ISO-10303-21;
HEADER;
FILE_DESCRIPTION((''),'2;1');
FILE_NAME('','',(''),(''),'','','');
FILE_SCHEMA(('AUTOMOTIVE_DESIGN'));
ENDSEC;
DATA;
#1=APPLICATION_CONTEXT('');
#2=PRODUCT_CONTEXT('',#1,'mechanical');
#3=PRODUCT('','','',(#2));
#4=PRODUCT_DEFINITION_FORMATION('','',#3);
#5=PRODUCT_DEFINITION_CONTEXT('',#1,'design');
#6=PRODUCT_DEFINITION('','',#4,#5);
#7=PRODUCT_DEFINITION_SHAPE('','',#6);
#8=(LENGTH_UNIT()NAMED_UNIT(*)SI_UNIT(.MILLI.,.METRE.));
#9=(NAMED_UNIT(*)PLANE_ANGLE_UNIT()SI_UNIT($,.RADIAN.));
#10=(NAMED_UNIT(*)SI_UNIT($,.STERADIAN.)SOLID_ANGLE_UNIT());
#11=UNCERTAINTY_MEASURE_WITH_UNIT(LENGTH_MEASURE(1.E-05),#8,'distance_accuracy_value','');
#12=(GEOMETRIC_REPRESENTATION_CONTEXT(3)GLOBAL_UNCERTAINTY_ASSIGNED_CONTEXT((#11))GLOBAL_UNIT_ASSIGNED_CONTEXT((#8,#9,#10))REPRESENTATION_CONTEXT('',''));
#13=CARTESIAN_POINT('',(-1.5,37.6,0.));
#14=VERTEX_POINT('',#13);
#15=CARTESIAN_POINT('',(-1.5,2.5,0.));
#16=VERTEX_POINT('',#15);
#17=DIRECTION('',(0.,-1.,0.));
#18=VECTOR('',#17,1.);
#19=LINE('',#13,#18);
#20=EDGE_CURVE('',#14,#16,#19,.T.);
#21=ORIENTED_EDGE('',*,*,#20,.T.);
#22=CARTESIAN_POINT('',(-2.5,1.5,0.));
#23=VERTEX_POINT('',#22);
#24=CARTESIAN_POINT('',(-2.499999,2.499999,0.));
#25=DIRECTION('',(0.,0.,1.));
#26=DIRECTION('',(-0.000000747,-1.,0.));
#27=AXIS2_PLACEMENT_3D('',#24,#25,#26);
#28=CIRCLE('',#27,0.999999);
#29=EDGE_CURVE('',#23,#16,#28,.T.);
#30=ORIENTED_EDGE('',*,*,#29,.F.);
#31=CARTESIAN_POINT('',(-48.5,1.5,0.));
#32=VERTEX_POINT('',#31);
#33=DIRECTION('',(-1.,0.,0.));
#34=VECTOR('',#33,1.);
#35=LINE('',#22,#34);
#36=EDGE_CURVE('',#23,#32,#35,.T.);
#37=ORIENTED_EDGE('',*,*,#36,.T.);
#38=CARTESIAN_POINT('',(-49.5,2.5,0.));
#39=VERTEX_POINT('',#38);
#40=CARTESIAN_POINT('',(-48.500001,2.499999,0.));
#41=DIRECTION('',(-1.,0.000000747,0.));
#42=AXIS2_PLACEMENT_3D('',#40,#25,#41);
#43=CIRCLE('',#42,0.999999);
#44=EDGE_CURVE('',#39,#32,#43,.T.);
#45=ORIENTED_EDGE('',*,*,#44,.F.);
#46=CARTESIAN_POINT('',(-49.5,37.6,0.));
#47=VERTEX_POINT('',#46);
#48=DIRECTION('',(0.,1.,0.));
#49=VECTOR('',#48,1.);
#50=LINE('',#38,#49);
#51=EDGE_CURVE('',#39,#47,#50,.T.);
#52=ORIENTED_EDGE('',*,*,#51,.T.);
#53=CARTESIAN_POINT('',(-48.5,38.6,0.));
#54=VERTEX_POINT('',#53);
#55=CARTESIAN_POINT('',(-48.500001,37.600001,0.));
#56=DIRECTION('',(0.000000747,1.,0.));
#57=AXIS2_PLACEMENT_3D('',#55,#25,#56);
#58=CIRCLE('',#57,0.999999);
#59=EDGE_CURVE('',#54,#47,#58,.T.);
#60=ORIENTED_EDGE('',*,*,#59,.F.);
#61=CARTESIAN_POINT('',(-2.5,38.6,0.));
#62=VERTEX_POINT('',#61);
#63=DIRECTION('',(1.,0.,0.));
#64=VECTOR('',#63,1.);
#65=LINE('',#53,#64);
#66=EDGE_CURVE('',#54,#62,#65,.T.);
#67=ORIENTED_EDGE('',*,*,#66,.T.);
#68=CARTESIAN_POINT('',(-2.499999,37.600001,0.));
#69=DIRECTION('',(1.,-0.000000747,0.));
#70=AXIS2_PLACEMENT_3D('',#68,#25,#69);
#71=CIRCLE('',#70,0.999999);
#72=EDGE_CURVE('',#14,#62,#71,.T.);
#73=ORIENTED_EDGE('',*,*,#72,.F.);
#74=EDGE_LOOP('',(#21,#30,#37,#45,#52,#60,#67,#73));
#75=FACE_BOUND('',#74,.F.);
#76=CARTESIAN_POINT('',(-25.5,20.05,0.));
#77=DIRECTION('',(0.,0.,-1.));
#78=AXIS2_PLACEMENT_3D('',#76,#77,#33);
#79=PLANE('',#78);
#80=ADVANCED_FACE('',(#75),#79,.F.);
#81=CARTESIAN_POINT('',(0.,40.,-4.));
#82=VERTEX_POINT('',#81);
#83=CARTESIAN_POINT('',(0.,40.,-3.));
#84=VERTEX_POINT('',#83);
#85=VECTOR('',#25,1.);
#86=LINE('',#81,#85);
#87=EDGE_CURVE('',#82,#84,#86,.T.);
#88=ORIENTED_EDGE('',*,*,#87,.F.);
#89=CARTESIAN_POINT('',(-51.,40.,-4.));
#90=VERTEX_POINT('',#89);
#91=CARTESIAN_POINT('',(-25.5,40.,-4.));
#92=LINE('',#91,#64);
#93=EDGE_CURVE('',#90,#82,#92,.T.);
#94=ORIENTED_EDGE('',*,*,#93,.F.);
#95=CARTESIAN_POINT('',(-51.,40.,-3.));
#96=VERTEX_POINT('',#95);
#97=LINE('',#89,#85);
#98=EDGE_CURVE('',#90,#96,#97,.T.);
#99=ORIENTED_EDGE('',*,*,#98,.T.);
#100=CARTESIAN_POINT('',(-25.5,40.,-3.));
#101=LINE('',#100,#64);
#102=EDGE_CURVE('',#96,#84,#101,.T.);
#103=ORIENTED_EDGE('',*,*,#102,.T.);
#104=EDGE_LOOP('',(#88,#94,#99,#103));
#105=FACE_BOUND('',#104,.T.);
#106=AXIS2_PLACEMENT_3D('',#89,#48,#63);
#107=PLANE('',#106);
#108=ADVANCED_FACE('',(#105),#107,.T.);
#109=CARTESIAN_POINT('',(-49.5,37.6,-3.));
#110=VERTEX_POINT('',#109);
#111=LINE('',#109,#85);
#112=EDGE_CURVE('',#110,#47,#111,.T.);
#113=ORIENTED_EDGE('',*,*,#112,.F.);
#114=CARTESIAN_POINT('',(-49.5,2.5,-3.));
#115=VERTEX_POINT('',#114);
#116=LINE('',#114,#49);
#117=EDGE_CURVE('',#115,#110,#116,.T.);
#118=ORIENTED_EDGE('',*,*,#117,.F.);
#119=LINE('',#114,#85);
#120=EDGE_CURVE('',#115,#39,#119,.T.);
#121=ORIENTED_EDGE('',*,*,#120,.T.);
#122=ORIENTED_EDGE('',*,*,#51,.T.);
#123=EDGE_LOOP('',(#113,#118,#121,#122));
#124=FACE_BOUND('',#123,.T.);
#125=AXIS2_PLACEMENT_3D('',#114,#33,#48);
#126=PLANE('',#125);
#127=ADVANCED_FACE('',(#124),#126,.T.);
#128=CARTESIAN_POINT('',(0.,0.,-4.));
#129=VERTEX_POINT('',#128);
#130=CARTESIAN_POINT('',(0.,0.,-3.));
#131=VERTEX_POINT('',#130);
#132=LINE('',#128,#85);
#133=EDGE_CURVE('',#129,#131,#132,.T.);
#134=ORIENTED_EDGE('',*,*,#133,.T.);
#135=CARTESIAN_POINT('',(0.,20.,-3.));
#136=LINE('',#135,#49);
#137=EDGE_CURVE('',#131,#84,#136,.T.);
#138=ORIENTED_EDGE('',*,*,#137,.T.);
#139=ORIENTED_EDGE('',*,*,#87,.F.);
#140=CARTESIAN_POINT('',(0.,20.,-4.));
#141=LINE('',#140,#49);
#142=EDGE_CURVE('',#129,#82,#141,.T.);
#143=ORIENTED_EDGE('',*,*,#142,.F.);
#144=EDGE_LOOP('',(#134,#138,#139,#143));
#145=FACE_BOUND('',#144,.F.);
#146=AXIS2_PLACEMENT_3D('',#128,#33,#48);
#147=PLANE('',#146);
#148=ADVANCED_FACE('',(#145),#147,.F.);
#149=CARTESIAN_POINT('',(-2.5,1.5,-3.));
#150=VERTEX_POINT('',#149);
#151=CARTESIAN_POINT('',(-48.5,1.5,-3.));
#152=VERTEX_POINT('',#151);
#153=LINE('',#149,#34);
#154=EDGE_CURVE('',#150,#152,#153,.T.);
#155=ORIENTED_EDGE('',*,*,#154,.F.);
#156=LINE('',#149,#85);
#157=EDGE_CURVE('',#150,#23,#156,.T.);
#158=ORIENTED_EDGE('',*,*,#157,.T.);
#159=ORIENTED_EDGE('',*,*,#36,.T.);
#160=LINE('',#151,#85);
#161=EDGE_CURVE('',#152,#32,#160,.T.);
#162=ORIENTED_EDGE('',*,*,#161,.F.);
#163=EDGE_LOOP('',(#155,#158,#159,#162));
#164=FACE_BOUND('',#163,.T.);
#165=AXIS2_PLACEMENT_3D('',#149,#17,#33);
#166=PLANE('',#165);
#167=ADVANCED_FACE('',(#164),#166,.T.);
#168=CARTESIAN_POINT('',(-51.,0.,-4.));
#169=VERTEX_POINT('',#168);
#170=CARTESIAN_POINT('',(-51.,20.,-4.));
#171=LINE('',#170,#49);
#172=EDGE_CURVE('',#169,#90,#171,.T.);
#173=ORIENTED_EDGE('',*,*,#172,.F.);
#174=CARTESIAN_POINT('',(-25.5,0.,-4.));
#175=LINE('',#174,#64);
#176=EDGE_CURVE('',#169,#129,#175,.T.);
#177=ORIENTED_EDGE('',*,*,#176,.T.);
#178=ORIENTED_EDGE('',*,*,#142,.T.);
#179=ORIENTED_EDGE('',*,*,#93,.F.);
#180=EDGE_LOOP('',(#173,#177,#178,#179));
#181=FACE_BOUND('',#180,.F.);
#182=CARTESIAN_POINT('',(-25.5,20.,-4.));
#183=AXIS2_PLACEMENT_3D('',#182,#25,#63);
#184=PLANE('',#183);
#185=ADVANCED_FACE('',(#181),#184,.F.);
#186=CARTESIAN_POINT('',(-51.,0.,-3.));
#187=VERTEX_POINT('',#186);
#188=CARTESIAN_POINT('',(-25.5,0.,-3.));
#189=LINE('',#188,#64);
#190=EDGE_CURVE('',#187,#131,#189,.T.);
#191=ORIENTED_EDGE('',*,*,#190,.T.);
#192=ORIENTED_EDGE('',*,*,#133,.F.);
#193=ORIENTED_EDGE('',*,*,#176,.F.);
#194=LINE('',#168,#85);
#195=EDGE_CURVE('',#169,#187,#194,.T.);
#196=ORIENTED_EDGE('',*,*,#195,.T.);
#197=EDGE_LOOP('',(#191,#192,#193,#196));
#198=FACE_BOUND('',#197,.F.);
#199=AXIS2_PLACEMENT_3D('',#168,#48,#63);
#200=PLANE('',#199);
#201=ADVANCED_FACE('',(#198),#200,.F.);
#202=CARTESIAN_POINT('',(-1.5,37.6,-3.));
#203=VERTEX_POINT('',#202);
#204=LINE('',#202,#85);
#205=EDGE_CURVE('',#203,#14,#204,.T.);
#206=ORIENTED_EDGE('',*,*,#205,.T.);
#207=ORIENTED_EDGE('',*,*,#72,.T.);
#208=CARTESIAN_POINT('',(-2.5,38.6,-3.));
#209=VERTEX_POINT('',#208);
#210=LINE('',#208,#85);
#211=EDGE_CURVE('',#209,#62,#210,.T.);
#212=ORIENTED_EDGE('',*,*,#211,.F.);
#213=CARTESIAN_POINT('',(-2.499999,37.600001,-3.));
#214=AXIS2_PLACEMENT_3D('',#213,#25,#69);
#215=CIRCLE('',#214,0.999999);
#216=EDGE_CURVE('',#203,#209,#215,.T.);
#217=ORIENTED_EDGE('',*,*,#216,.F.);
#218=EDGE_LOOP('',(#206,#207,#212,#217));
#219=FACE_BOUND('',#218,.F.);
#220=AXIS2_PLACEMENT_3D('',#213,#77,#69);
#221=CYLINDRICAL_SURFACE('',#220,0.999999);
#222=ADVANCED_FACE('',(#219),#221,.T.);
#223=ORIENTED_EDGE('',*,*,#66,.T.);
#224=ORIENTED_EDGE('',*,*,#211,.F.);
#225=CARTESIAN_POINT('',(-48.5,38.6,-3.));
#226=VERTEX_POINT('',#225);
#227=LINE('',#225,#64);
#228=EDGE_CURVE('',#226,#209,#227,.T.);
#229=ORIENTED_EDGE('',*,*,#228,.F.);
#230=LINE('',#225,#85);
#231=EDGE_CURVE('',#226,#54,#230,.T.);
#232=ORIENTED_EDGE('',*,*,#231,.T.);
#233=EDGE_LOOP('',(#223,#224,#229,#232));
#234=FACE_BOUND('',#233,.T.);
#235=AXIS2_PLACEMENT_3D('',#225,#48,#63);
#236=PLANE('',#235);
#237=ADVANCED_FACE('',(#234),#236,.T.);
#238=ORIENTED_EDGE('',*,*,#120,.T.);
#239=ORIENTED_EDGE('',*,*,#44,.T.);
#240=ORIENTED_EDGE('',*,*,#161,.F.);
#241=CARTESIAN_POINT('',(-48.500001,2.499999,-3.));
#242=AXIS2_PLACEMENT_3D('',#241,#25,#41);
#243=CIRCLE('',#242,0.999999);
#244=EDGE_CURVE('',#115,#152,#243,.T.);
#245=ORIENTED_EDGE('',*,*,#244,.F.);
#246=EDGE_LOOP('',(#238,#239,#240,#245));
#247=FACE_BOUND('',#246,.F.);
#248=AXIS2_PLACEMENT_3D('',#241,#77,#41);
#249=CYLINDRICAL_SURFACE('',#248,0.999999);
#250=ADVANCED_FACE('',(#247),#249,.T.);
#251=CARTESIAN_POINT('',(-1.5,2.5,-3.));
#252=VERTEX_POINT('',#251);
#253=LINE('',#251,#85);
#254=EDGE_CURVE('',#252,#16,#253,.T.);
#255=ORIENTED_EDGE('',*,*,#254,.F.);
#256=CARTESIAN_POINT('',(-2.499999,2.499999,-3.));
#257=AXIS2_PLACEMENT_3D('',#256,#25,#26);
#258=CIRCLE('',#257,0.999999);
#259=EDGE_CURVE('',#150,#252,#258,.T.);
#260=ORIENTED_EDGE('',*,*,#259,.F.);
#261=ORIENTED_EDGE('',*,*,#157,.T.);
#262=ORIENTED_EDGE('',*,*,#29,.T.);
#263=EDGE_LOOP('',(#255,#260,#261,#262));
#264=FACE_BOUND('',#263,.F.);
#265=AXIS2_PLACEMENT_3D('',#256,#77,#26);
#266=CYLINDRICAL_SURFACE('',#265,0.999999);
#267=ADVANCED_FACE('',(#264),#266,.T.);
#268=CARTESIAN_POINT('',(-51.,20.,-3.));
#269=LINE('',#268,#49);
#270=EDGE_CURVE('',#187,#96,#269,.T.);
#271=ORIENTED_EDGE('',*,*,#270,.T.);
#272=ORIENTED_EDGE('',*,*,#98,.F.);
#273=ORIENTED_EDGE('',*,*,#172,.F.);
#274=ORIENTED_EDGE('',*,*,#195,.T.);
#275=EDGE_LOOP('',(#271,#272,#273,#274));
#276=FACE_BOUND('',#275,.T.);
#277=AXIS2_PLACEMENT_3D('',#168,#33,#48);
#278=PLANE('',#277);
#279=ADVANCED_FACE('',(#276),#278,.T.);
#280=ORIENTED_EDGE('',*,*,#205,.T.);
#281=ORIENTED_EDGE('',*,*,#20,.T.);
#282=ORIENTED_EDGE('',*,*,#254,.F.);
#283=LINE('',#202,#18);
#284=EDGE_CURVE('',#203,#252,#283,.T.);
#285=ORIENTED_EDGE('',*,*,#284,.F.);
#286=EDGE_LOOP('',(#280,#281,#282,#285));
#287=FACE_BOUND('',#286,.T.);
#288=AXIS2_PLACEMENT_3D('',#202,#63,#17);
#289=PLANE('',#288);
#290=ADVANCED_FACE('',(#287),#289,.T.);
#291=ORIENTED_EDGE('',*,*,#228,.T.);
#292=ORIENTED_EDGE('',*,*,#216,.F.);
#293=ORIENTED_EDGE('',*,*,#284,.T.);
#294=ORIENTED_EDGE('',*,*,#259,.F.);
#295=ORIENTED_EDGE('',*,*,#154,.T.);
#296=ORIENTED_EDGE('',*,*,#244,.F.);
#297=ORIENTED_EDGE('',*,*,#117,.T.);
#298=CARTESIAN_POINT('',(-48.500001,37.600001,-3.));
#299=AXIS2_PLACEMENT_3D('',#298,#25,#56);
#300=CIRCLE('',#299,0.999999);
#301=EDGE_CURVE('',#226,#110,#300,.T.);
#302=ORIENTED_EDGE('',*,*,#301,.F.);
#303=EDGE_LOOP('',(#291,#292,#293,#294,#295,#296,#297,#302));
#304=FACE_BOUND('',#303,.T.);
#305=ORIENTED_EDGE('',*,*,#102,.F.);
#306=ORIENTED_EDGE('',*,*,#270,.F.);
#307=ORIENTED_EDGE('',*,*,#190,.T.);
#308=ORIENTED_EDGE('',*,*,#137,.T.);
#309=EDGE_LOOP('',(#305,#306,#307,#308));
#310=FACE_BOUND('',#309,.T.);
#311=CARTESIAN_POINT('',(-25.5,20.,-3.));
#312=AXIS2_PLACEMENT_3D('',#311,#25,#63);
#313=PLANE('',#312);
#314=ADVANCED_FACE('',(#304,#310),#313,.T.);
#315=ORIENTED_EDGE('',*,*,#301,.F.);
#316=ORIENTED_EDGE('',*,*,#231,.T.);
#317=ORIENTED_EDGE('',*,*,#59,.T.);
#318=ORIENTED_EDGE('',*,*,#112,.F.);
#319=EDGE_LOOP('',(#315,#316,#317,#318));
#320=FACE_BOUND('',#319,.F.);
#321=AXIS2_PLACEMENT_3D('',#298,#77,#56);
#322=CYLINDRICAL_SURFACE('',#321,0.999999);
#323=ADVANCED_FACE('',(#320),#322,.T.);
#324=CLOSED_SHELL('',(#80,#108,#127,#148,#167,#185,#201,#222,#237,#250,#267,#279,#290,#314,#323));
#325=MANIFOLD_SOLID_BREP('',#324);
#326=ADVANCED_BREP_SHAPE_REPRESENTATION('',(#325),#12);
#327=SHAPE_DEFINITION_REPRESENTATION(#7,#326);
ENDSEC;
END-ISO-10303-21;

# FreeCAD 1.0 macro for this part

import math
import FreeCAD as App
import Part
import Sketcher

V = App.Vector
Q = App.Units.Quantity


def add_polygon(sketch, points):
    """Adds a closed chain of lines whose ends are joined by coincident constraints."""
    first, n = sketch.GeometryCount, len(points)
    for a, b in zip(points, points[1:] + points[:1]):
        sketch.addGeometry(Part.LineSegment(App.Vector(*a, 0), App.Vector(*b, 0)), False)
    for i in range(n):
        sketch.addConstraint(Sketcher.Constraint("Coincident", first + i, 2, first + (i + 1) % n, 1))

doc = App.newDocument("Part")
params = doc.addObject("Spreadsheet::Sheet", "Params")
for row, (alias, value) in enumerate([
    ("sketch1_width", "51 mm"),
    ("sketch1_height", "40 mm"),
    ("pad1_length", "1 mm"),
    ("sketch2_radius", "0.999999 mm"),
    ("sketch2_width", "46 mm"),
    ("sketch2_height", "35.1 mm"),
    ("pad2_length", "3 mm"),
], start=1):
    params.set(f"A{row}", alias)
    params.set(f"B{row}", "=" + value)
    params.setAlias(f"B{row}", alias)

body = doc.addObject("PartDesign::Body", "Body")

sketch1 = body.newObject("Sketcher::SketchObject", "Sketch")
sketch1.AttachmentSupport = (doc.getObject("XY_Plane"), [""])
sketch1.MapMode = "FlatFace"
add_polygon(sketch1, [(-51, 40), (-51, 0), (0, 0), (0, 40)])
sketch1.addConstraint([
    Sketcher.Constraint("Vertical", 0),
    Sketcher.Constraint("Horizontal", 1),
    Sketcher.Constraint("Vertical", 2),
    Sketcher.Constraint("Horizontal", 3),
    Sketcher.Constraint("Coincident", 1, 2, -1, 1),
    Sketcher.Constraint("DistanceX", 1, 1, 1, 2, Q("51 mm")),
    Sketcher.Constraint("DistanceY", 0, 2, 0, 1, Q("40 mm")),
])
sketch1.setExpression("Constraints[9]", "Params.sketch1_width")
sketch1.setExpression("Constraints[10]", "Params.sketch1_height")
pad1 = body.newObject("PartDesign::Pad", "Pad")
pad1.Profile = sketch1
pad1.setExpression("Length", "Params.pad1_length")

sketch2 = body.newObject("Sketcher::SketchObject", "Sketch001")
sketch2.AttachmentSupport = (doc.getObject("XY_Plane"), [""])
sketch2.MapMode = "FlatFace"
sketch2.AttachmentOffset = App.Placement(V(0, 0, 1), App.Rotation())
sketch2.addGeometry([
    Part.LineSegment(V(-2.5, 38.6, 0), V(-48.5, 38.6, 0)),
    Part.ArcOfCircle(Part.Circle(V(-48.5, 37.6, 0), V(0, 0, 1), 1), math.radians(90), math.radians(180)),
    Part.LineSegment(V(-49.5, 37.6, 0), V(-49.5, 2.5, 0)),
    Part.ArcOfCircle(Part.Circle(V(-48.5, 2.5, 0), V(0, 0, 1), 1), math.radians(180), math.radians(270)),
    Part.LineSegment(V(-48.5, 1.5, 0), V(-2.5, 1.5, 0)),
    Part.ArcOfCircle(Part.Circle(V(-2.5, 2.5, 0), V(0, 0, 1), 1), math.radians(-90), math.radians(0)),
    Part.LineSegment(V(-1.5, 2.5, 0), V(-1.5, 37.6, 0)),
    Part.ArcOfCircle(Part.Circle(V(-2.5, 37.6, 0), V(0, 0, 1), 1), math.radians(0), math.radians(90)),
], False)
sketch2.addConstraint([
    Sketcher.Constraint("Tangent", 0, 2, 1, 1),
    Sketcher.Constraint("Tangent", 1, 2, 2, 1),
    Sketcher.Constraint("Tangent", 2, 2, 3, 1),
    Sketcher.Constraint("Tangent", 3, 2, 4, 1),
    Sketcher.Constraint("Tangent", 4, 2, 5, 1),
    Sketcher.Constraint("Tangent", 5, 2, 6, 1),
    Sketcher.Constraint("Tangent", 6, 2, 7, 1),
    Sketcher.Constraint("Tangent", 7, 2, 0, 1),
    Sketcher.Constraint("Horizontal", 0),
    Sketcher.Constraint("Vertical", 2),
    Sketcher.Constraint("Horizontal", 4),
    Sketcher.Constraint("Vertical", 6),
    Sketcher.Constraint("Equal", 1, 3),
    Sketcher.Constraint("Equal", 3, 5),
    Sketcher.Constraint("Equal", 5, 7),
    Sketcher.Constraint("Radius", 1, Q("0.999999 mm")),
    Sketcher.Constraint("DistanceX", 0, 2, 0, 1, Q("46 mm")),
    Sketcher.Constraint("DistanceY", 2, 2, 2, 1, Q("35.1 mm")),
    Sketcher.Constraint("DistanceX", 1, 3, -1, 1, Q("48.500001 mm")),
    Sketcher.Constraint("DistanceY", -1, 1, 1, 3, Q("37.600001 mm")),
])
sketch2.setExpression("Constraints[15]", "Params.sketch2_radius")
sketch2.setExpression("Constraints[16]", "Params.sketch2_width")
sketch2.setExpression("Constraints[17]", "Params.sketch2_height")
pad2 = body.newObject("PartDesign::Pad", "Pad001")
pad2.Profile = sketch2
pad2.setExpression("Length", "Params.pad2_length")
body2 = doc.addObject("PartDesign::Body", "Body001")
doc.recompute()

body.Placement = App.Placement(V(0, 0, -4), App.Rotation(V(0, 0, 1), 0))
boolean = body2.newObject("PartDesign::Boolean", "Boolean")
boolean.Type = "Fuse"
boolean.addObjects([body])

doc.recompute()
